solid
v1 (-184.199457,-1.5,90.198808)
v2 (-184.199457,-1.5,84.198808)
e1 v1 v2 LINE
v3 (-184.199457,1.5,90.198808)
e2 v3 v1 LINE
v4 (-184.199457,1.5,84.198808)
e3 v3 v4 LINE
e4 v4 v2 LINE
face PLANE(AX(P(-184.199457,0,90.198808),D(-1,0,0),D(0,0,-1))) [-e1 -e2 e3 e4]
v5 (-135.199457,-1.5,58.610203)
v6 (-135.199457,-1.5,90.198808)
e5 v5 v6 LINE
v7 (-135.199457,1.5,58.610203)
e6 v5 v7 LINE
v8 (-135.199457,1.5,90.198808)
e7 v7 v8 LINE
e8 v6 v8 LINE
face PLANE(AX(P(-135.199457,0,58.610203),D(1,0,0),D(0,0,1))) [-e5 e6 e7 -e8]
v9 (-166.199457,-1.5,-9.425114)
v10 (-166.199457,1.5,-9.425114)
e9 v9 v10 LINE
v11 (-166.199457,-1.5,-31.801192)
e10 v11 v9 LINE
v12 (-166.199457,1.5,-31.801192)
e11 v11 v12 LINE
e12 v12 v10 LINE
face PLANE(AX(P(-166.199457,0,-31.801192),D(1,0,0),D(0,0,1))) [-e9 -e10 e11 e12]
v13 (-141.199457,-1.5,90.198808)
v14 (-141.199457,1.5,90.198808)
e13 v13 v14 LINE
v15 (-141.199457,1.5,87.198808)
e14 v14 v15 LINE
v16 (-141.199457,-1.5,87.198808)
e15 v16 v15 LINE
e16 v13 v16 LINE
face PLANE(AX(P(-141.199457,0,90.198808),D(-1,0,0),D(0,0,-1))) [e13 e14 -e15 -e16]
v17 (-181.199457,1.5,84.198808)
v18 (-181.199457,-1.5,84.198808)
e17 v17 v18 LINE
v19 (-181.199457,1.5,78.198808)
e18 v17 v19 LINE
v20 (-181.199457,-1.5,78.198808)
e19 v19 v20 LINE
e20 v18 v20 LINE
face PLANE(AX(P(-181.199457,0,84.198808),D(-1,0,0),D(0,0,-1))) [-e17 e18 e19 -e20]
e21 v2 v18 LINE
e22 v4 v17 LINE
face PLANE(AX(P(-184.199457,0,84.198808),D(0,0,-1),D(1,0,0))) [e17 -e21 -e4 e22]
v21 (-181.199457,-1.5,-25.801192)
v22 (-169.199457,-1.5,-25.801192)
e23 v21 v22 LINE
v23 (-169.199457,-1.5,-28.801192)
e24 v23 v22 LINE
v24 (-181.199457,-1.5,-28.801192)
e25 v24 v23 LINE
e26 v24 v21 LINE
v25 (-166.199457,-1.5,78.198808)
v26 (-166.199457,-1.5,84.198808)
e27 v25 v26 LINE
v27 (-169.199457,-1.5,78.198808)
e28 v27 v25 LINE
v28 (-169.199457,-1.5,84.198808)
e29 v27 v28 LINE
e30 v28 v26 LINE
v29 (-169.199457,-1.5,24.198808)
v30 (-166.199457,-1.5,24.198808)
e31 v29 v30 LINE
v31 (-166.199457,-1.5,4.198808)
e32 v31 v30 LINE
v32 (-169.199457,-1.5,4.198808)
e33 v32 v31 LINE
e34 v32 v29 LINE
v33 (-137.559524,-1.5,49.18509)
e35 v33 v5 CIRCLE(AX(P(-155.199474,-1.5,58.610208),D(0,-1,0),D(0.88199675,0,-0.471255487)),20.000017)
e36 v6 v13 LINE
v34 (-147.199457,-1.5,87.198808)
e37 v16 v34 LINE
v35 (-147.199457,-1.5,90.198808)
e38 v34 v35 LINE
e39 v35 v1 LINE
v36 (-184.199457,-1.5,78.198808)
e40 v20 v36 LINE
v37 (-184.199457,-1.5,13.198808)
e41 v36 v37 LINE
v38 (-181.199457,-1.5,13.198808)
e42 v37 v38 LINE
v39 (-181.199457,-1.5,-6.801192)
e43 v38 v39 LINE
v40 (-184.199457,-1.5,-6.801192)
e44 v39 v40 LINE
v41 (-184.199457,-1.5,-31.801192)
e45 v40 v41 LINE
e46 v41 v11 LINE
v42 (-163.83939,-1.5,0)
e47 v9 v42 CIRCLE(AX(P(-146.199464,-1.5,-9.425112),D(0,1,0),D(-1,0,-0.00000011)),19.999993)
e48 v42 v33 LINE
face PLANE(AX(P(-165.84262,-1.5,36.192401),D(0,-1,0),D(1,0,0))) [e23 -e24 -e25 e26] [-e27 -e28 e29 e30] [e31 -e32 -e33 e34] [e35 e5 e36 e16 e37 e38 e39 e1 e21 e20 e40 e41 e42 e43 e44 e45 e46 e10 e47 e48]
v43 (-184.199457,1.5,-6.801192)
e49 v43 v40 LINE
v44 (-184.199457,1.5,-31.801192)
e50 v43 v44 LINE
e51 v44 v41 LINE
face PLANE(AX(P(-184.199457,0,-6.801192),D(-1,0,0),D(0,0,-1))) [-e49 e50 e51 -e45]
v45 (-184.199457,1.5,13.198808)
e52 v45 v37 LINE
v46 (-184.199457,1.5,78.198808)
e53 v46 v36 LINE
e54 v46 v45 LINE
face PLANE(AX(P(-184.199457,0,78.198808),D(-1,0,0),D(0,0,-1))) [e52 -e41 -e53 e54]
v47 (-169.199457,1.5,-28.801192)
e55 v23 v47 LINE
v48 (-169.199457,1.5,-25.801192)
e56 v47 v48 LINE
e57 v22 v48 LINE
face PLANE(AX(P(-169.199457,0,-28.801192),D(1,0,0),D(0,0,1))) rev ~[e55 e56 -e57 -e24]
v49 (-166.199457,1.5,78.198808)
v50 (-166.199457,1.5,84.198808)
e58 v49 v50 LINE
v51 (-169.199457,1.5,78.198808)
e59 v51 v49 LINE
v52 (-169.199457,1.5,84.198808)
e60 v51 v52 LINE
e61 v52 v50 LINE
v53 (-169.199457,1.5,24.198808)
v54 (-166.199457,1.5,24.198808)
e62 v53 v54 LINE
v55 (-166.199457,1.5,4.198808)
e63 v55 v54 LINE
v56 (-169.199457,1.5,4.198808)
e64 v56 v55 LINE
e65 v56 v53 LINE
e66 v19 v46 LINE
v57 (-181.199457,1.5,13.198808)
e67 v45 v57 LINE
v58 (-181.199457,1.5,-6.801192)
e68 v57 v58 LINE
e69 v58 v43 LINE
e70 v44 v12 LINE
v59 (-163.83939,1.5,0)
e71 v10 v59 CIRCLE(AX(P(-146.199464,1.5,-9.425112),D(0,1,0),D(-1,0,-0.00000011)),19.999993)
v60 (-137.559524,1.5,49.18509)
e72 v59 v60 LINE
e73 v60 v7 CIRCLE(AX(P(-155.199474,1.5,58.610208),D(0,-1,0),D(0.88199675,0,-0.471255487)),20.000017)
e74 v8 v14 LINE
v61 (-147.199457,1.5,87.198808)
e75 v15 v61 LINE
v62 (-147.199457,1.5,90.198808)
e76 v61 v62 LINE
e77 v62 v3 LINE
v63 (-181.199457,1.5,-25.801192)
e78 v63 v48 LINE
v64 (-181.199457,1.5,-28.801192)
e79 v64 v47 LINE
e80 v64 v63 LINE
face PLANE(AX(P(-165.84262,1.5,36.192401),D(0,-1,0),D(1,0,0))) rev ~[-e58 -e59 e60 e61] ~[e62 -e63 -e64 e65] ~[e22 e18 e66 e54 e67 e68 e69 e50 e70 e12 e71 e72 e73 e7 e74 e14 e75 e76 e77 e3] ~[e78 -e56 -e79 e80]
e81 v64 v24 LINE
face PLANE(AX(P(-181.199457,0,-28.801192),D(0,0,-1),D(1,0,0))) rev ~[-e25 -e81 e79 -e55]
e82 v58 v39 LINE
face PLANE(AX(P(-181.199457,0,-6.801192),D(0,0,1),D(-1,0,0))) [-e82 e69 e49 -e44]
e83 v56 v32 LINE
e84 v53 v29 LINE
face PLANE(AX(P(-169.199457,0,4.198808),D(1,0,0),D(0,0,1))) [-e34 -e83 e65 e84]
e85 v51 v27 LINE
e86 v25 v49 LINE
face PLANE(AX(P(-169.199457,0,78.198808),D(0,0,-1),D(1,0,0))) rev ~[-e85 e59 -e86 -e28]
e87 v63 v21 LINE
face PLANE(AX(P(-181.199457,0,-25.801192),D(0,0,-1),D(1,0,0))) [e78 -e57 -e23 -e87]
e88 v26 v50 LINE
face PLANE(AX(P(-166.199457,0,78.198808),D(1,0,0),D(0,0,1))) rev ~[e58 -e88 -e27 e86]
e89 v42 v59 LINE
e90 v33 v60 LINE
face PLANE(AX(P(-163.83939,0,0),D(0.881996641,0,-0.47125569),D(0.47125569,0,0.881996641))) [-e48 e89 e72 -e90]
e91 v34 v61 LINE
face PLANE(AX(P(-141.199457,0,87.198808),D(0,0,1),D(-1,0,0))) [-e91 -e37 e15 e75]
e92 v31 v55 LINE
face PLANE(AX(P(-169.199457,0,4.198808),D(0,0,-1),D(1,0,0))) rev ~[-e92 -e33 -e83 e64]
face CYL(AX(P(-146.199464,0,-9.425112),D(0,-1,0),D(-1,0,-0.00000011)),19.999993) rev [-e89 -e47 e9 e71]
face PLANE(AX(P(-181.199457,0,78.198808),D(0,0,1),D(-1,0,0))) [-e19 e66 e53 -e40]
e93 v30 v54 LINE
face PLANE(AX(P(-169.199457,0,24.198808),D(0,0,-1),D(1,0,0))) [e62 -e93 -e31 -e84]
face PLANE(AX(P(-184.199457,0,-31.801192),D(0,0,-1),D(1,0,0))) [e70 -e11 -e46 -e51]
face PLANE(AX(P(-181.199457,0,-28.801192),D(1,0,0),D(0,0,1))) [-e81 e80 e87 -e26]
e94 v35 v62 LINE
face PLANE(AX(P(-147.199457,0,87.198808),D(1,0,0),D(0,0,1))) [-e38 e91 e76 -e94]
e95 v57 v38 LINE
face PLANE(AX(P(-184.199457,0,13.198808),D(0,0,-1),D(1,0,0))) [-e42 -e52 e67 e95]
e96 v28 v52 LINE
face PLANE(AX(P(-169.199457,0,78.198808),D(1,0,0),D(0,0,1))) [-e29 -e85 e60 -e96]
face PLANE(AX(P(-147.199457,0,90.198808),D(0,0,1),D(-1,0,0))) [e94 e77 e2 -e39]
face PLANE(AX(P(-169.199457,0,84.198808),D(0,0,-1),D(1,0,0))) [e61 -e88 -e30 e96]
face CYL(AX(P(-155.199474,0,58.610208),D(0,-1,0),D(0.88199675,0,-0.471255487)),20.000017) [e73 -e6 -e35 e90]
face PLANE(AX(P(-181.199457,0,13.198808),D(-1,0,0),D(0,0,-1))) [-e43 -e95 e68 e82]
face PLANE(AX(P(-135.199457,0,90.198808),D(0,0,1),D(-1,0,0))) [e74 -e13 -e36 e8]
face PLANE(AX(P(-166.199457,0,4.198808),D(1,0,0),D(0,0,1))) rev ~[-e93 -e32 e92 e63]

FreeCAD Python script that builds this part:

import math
import FreeCAD as App
import Part
import Sketcher
Q = App.Units.Quantity


def add_polygon(sketch, points):
    """Adds a closed chain of lines whose ends are joined by coincident constraints."""
    first, n = sketch.GeometryCount, len(points)
    for a, b in zip(points, points[1:] + points[:1]):
        sketch.addGeometry(Part.LineSegment(App.Vector(*a, 0), App.Vector(*b, 0)), False)
    for i in range(n):
        sketch.addConstraint(Sketcher.Constraint("Coincident", first + i, 2, first + (i + 1) % n, 1))

doc = App.newDocument("Part")
body = doc.addObject("PartDesign::Body", "Body")

sketch1 = doc.addObject("Sketcher::SketchObject", "Sketch")
body.addObject(sketch1)
sketch1.AttachmentSupport = (doc.XZ_Plane, [""])
sketch1.MapMode = "FlatFace"
sketch1.addGeometry(Part.LineSegment(App.Vector(-147.2, 90.2, 0), App.Vector(-184.2, 90.2, 0)), False)
sketch1.addGeometry(Part.LineSegment(App.Vector(-184.2, 90.2, 0), App.Vector(-184.2, 84.2, 0)), False)
sketch1.addGeometry(Part.LineSegment(App.Vector(-184.2, 84.2, 0), App.Vector(-181.2, 84.2, 0)), False)
sketch1.addGeometry(Part.LineSegment(App.Vector(-181.2, 84.2, 0), App.Vector(-181.2, 78.2, 0)), False)
sketch1.addGeometry(Part.LineSegment(App.Vector(-181.2, 78.2, 0), App.Vector(-184.2, 78.2, 0)), False)
sketch1.addGeometry(Part.LineSegment(App.Vector(-184.2, 78.2, 0), App.Vector(-184.2, 13.2, 0)), False)
sketch1.addGeometry(Part.LineSegment(App.Vector(-184.2, 13.2, 0), App.Vector(-181.2, 13.2, 0)), False)
sketch1.addGeometry(Part.LineSegment(App.Vector(-181.2, 13.2, 0), App.Vector(-181.2, -6.8, 0)), False)
sketch1.addGeometry(Part.LineSegment(App.Vector(-181.2, -6.8, 0), App.Vector(-184.2, -6.8, 0)), False)
sketch1.addGeometry(Part.LineSegment(App.Vector(-184.2, -6.8, 0), App.Vector(-184.2, -31.8, 0)), False)
sketch1.addGeometry(Part.LineSegment(App.Vector(-184.2, -31.8, 0), App.Vector(-166.2, -31.8, 0)), False)
sketch1.addGeometry(Part.LineSegment(App.Vector(-166.2, -31.8, 0), App.Vector(-166.2, -9.4, 0)), False)
sketch1.addGeometry(Part.ArcOfCircle(Part.Circle(App.Vector(-146.2, -9.4, 0), App.Vector(0, 0, 1), 20), math.radians(152), math.radians(180)), False)
sketch1.addGeometry(Part.LineSegment(App.Vector(-163.8, 0, 0), App.Vector(-137.6, 49.2, 0)), False)
sketch1.addGeometry(Part.ArcOfCircle(Part.Circle(App.Vector(-155.2, 58.6, 0), App.Vector(0, 0, 1), 20), math.radians(-28), math.radians(0)), False)
sketch1.addGeometry(Part.LineSegment(App.Vector(-135.2, 58.6, 0), App.Vector(-135.2, 90.2, 0)), False)
sketch1.addGeometry(Part.LineSegment(App.Vector(-135.2, 90.2, 0), App.Vector(-141.2, 90.2, 0)), False)
sketch1.addGeometry(Part.LineSegment(App.Vector(-141.2, 90.2, 0), App.Vector(-141.2, 87.2, 0)), False)
sketch1.addGeometry(Part.LineSegment(App.Vector(-141.2, 87.2, 0), App.Vector(-147.2, 87.2, 0)), False)
sketch1.addGeometry(Part.LineSegment(App.Vector(-147.2, 87.2, 0), App.Vector(-147.2, 90.2, 0)), False)
add_polygon(sketch1, [(-169.2, -28.8), (-181.2, -28.8), (-181.2, -25.8), (-169.2, -25.8)])
add_polygon(sketch1, [(-166.2, 4.2), (-169.2, 4.2), (-169.2, 24.2), (-166.2, 24.2)])
add_polygon(sketch1, [(-166.2, 78.2), (-169.2, 78.2), (-169.2, 84.2), (-166.2, 84.2)])
sketch1.addConstraint(Sketcher.Constraint("Coincident", 0, 2, 1, 1))
sketch1.addConstraint(Sketcher.Constraint("Coincident", 1, 2, 2, 1))
sketch1.addConstraint(Sketcher.Constraint("Coincident", 2, 2, 3, 1))
sketch1.addConstraint(Sketcher.Constraint("Coincident", 3, 2, 4, 1))
sketch1.addConstraint(Sketcher.Constraint("Coincident", 4, 2, 5, 1))
sketch1.addConstraint(Sketcher.Constraint("Coincident", 5, 2, 6, 1))
sketch1.addConstraint(Sketcher.Constraint("Coincident", 6, 2, 7, 1))
sketch1.addConstraint(Sketcher.Constraint("Coincident", 7, 2, 8, 1))
sketch1.addConstraint(Sketcher.Constraint("Coincident", 8, 2, 9, 1))
sketch1.addConstraint(Sketcher.Constraint("Coincident", 9, 2, 10, 1))
sketch1.addConstraint(Sketcher.Constraint("Coincident", 10, 2, 11, 1))
sketch1.addConstraint(Sketcher.Constraint("Tangent", 11, 2, 12, 2))
sketch1.addConstraint(Sketcher.Constraint("Tangent", 12, 1, 13, 1))
sketch1.addConstraint(Sketcher.Constraint("Tangent", 13, 2, 14, 1))
sketch1.addConstraint(Sketcher.Constraint("Tangent", 14, 2, 15, 1))
sketch1.addConstraint(Sketcher.Constraint("Coincident", 15, 2, 16, 1))
sketch1.addConstraint(Sketcher.Constraint("Coincident", 16, 2, 17, 1))
sketch1.addConstraint(Sketcher.Constraint("Coincident", 17, 2, 18, 1))
sketch1.addConstraint(Sketcher.Constraint("Coincident", 18, 2, 19, 1))
sketch1.addConstraint(Sketcher.Constraint("Coincident", 19, 2, 0, 1))
sketch1.addConstraint(Sketcher.Constraint("Horizontal", 0))
sketch1.addConstraint(Sketcher.Constraint("Vertical", 1))
sketch1.addConstraint(Sketcher.Constraint("Horizontal", 2))
sketch1.addConstraint(Sketcher.Constraint("Vertical", 3))
sketch1.addConstraint(Sketcher.Constraint("Horizontal", 4))
sketch1.addConstraint(Sketcher.Constraint("Vertical", 5))
sketch1.addConstraint(Sketcher.Constraint("Horizontal", 6))
sketch1.addConstraint(Sketcher.Constraint("Vertical", 7))
sketch1.addConstraint(Sketcher.Constraint("Horizontal", 8))
sketch1.addConstraint(Sketcher.Constraint("Vertical", 9))
sketch1.addConstraint(Sketcher.Constraint("Horizontal", 10))
sketch1.addConstraint(Sketcher.Constraint("Vertical", 11))
sketch1.addConstraint(Sketcher.Constraint("Vertical", 15))
sketch1.addConstraint(Sketcher.Constraint("Horizontal", 16))
sketch1.addConstraint(Sketcher.Constraint("Vertical", 17))
sketch1.addConstraint(Sketcher.Constraint("Horizontal", 18))
sketch1.addConstraint(Sketcher.Constraint("Vertical", 19))
sketch1.addConstraint(Sketcher.Constraint("Horizontal", 20))
sketch1.addConstraint(Sketcher.Constraint("Vertical", 21))
sketch1.addConstraint(Sketcher.Constraint("Horizontal", 22))
sketch1.addConstraint(Sketcher.Constraint("Vertical", 23))
sketch1.addConstraint(Sketcher.Constraint("Horizontal", 24))
sketch1.addConstraint(Sketcher.Constraint("Vertical", 25))
sketch1.addConstraint(Sketcher.Constraint("Horizontal", 26))
sketch1.addConstraint(Sketcher.Constraint("Vertical", 27))
sketch1.addConstraint(Sketcher.Constraint("Horizontal", 28))
sketch1.addConstraint(Sketcher.Constraint("Vertical", 29))
sketch1.addConstraint(Sketcher.Constraint("Horizontal", 30))
sketch1.addConstraint(Sketcher.Constraint("Vertical", 31))
sketch1.addConstraint(Sketcher.Constraint("PointOnObject", 12, 1, -1))
sketch1.addConstraint(Sketcher.Constraint("Horizontal", 0, 2, 15, 2))
sketch1.addConstraint(Sketcher.Constraint("Horizontal", 4, 2, 28, 2))
sketch1.addConstraint(Sketcher.Constraint("Horizontal", 2, 2, 29, 2))
sketch1.addConstraint(Sketcher.Constraint("Vertical", 1, 2, 4, 2))
sketch1.addConstraint(Sketcher.Constraint("Vertical", 3, 2, 6, 2))
sketch1.addConstraint(Sketcher.Constraint("Vertical", 5, 2, 8, 2))
sketch1.addConstraint(Sketcher.Constraint("Vertical", 7, 2, 20, 2))
sketch1.addConstraint(Sketcher.Constraint("Vertical", 23, 2, 24, 2))
sketch1.addConstraint(Sketcher.Constraint("Vertical", 11, 2, 26, 2))
sketch1.addConstraint(Sketcher.Constraint("Vertical", 25, 2, 28, 2))
sketch1.addConstraint(Sketcher.Constraint("Vertical", 27, 2, 30, 2))
sketch1.addConstraint(Sketcher.Constraint("Equal", 16, 18))
sketch1.addConstraint(Sketcher.Constraint("Equal", 8, 24))
sketch1.addConstraint(Sketcher.Constraint("Equal", 18, 1))
sketch1.addConstraint(Sketcher.Constraint("Equal", 1, 3))
sketch1.addConstraint(Sketcher.Constraint("Equal", 30, 17))
sketch1.addConstraint(Sketcher.Constraint("Equal", 19, 21))
sketch1.addConstraint(Sketcher.Constraint("Equal", 7, 25))
sketch1.addConstraint(Sketcher.Constraint("DistanceX", 0, 2, 0, 1, Q("37 mm")))
sketch1.addConstraint(Sketcher.Constraint("DistanceX", 2, 1, 2, 2, Q("3 mm")))
sketch1.addConstraint(Sketcher.Constraint("DistanceX", 10, 1, 10, 2, Q("18 mm")))
sketch1.addConstraint(Sketcher.Constraint("DistanceX", 16, 2, 16, 1, Q("6 mm")))
sketch1.addConstraint(Sketcher.Constraint("DistanceY", 5, 2, 5, 1, Q("65 mm")))
sketch1.addConstraint(Sketcher.Constraint("DistanceY", 7, 2, 7, 1, Q("20 mm")))
sketch1.addConstraint(Sketcher.Constraint("DistanceY", 9, 2, 9, 1, Q("25 mm")))
sketch1.addConstraint(Sketcher.Constraint("DistanceY", 9, 2, 20, 2, Q("3 mm")))
sketch1.addConstraint(Sketcher.Constraint("DistanceY", 24, 2, 6, 2, Q("9 mm")))
sketch1.addConstraint(Sketcher.Constraint("Radius", 12, Q("19.999993 mm")))
sketch1.addConstraint(Sketcher.Constraint("Radius", 14, Q("20.000017 mm")))
sketch1.addConstraint(Sketcher.Constraint("DistanceY", 14, 3, 0, 2, Q("31.5886 mm")))
sketch1.addConstraint(Sketcher.Constraint("Distance", 13, Q("55.765621 mm")))
sketch1.addConstraint(Sketcher.Constraint("DistanceX", 12, 1, -1, 1, Q("163.83939 mm")))
pad1 = doc.addObject("PartDesign::Pad", "Pad")
body.addObject(pad1)
pad1.Profile = sketch1
pad1.Length = 3
pad1.Midplane = True

sketch2 = doc.addObject("Sketcher::SketchObject", "Sketch001")
body.addObject(sketch2)
sketch2.AttachmentSupport = (doc.XZ_Plane, [""])
sketch2.MapMode = "FlatFace"
add_polygon(sketch2, [(-181.2, -25.8), (-181.2, -28.8), (-169.2, -28.8), (-169.2, -25.8)])
sketch2.addConstraint(Sketcher.Constraint("Vertical", 0))
sketch2.addConstraint(Sketcher.Constraint("Horizontal", 1))
sketch2.addConstraint(Sketcher.Constraint("Vertical", 2))
sketch2.addConstraint(Sketcher.Constraint("Horizontal", 3))
sketch2.addConstraint(Sketcher.Constraint("DistanceX", 1, 1, 1, 2, Q("12 mm")))
sketch2.addConstraint(Sketcher.Constraint("DistanceY", 0, 2, 0, 1, Q("3 mm")))
sketch2.addConstraint(Sketcher.Constraint("DistanceX", 0, 2, -1, 1, Q("181.199457 mm")))
sketch2.addConstraint(Sketcher.Constraint("DistanceY", 0, 2, -1, 1, Q("28.801192 mm")))
pocket1 = doc.addObject("PartDesign::Pocket", "Pocket")
body.addObject(pocket1)
pocket1.Profile = sketch2
pocket1.Length = 3
pocket1.Midplane = True

doc.recompute()
